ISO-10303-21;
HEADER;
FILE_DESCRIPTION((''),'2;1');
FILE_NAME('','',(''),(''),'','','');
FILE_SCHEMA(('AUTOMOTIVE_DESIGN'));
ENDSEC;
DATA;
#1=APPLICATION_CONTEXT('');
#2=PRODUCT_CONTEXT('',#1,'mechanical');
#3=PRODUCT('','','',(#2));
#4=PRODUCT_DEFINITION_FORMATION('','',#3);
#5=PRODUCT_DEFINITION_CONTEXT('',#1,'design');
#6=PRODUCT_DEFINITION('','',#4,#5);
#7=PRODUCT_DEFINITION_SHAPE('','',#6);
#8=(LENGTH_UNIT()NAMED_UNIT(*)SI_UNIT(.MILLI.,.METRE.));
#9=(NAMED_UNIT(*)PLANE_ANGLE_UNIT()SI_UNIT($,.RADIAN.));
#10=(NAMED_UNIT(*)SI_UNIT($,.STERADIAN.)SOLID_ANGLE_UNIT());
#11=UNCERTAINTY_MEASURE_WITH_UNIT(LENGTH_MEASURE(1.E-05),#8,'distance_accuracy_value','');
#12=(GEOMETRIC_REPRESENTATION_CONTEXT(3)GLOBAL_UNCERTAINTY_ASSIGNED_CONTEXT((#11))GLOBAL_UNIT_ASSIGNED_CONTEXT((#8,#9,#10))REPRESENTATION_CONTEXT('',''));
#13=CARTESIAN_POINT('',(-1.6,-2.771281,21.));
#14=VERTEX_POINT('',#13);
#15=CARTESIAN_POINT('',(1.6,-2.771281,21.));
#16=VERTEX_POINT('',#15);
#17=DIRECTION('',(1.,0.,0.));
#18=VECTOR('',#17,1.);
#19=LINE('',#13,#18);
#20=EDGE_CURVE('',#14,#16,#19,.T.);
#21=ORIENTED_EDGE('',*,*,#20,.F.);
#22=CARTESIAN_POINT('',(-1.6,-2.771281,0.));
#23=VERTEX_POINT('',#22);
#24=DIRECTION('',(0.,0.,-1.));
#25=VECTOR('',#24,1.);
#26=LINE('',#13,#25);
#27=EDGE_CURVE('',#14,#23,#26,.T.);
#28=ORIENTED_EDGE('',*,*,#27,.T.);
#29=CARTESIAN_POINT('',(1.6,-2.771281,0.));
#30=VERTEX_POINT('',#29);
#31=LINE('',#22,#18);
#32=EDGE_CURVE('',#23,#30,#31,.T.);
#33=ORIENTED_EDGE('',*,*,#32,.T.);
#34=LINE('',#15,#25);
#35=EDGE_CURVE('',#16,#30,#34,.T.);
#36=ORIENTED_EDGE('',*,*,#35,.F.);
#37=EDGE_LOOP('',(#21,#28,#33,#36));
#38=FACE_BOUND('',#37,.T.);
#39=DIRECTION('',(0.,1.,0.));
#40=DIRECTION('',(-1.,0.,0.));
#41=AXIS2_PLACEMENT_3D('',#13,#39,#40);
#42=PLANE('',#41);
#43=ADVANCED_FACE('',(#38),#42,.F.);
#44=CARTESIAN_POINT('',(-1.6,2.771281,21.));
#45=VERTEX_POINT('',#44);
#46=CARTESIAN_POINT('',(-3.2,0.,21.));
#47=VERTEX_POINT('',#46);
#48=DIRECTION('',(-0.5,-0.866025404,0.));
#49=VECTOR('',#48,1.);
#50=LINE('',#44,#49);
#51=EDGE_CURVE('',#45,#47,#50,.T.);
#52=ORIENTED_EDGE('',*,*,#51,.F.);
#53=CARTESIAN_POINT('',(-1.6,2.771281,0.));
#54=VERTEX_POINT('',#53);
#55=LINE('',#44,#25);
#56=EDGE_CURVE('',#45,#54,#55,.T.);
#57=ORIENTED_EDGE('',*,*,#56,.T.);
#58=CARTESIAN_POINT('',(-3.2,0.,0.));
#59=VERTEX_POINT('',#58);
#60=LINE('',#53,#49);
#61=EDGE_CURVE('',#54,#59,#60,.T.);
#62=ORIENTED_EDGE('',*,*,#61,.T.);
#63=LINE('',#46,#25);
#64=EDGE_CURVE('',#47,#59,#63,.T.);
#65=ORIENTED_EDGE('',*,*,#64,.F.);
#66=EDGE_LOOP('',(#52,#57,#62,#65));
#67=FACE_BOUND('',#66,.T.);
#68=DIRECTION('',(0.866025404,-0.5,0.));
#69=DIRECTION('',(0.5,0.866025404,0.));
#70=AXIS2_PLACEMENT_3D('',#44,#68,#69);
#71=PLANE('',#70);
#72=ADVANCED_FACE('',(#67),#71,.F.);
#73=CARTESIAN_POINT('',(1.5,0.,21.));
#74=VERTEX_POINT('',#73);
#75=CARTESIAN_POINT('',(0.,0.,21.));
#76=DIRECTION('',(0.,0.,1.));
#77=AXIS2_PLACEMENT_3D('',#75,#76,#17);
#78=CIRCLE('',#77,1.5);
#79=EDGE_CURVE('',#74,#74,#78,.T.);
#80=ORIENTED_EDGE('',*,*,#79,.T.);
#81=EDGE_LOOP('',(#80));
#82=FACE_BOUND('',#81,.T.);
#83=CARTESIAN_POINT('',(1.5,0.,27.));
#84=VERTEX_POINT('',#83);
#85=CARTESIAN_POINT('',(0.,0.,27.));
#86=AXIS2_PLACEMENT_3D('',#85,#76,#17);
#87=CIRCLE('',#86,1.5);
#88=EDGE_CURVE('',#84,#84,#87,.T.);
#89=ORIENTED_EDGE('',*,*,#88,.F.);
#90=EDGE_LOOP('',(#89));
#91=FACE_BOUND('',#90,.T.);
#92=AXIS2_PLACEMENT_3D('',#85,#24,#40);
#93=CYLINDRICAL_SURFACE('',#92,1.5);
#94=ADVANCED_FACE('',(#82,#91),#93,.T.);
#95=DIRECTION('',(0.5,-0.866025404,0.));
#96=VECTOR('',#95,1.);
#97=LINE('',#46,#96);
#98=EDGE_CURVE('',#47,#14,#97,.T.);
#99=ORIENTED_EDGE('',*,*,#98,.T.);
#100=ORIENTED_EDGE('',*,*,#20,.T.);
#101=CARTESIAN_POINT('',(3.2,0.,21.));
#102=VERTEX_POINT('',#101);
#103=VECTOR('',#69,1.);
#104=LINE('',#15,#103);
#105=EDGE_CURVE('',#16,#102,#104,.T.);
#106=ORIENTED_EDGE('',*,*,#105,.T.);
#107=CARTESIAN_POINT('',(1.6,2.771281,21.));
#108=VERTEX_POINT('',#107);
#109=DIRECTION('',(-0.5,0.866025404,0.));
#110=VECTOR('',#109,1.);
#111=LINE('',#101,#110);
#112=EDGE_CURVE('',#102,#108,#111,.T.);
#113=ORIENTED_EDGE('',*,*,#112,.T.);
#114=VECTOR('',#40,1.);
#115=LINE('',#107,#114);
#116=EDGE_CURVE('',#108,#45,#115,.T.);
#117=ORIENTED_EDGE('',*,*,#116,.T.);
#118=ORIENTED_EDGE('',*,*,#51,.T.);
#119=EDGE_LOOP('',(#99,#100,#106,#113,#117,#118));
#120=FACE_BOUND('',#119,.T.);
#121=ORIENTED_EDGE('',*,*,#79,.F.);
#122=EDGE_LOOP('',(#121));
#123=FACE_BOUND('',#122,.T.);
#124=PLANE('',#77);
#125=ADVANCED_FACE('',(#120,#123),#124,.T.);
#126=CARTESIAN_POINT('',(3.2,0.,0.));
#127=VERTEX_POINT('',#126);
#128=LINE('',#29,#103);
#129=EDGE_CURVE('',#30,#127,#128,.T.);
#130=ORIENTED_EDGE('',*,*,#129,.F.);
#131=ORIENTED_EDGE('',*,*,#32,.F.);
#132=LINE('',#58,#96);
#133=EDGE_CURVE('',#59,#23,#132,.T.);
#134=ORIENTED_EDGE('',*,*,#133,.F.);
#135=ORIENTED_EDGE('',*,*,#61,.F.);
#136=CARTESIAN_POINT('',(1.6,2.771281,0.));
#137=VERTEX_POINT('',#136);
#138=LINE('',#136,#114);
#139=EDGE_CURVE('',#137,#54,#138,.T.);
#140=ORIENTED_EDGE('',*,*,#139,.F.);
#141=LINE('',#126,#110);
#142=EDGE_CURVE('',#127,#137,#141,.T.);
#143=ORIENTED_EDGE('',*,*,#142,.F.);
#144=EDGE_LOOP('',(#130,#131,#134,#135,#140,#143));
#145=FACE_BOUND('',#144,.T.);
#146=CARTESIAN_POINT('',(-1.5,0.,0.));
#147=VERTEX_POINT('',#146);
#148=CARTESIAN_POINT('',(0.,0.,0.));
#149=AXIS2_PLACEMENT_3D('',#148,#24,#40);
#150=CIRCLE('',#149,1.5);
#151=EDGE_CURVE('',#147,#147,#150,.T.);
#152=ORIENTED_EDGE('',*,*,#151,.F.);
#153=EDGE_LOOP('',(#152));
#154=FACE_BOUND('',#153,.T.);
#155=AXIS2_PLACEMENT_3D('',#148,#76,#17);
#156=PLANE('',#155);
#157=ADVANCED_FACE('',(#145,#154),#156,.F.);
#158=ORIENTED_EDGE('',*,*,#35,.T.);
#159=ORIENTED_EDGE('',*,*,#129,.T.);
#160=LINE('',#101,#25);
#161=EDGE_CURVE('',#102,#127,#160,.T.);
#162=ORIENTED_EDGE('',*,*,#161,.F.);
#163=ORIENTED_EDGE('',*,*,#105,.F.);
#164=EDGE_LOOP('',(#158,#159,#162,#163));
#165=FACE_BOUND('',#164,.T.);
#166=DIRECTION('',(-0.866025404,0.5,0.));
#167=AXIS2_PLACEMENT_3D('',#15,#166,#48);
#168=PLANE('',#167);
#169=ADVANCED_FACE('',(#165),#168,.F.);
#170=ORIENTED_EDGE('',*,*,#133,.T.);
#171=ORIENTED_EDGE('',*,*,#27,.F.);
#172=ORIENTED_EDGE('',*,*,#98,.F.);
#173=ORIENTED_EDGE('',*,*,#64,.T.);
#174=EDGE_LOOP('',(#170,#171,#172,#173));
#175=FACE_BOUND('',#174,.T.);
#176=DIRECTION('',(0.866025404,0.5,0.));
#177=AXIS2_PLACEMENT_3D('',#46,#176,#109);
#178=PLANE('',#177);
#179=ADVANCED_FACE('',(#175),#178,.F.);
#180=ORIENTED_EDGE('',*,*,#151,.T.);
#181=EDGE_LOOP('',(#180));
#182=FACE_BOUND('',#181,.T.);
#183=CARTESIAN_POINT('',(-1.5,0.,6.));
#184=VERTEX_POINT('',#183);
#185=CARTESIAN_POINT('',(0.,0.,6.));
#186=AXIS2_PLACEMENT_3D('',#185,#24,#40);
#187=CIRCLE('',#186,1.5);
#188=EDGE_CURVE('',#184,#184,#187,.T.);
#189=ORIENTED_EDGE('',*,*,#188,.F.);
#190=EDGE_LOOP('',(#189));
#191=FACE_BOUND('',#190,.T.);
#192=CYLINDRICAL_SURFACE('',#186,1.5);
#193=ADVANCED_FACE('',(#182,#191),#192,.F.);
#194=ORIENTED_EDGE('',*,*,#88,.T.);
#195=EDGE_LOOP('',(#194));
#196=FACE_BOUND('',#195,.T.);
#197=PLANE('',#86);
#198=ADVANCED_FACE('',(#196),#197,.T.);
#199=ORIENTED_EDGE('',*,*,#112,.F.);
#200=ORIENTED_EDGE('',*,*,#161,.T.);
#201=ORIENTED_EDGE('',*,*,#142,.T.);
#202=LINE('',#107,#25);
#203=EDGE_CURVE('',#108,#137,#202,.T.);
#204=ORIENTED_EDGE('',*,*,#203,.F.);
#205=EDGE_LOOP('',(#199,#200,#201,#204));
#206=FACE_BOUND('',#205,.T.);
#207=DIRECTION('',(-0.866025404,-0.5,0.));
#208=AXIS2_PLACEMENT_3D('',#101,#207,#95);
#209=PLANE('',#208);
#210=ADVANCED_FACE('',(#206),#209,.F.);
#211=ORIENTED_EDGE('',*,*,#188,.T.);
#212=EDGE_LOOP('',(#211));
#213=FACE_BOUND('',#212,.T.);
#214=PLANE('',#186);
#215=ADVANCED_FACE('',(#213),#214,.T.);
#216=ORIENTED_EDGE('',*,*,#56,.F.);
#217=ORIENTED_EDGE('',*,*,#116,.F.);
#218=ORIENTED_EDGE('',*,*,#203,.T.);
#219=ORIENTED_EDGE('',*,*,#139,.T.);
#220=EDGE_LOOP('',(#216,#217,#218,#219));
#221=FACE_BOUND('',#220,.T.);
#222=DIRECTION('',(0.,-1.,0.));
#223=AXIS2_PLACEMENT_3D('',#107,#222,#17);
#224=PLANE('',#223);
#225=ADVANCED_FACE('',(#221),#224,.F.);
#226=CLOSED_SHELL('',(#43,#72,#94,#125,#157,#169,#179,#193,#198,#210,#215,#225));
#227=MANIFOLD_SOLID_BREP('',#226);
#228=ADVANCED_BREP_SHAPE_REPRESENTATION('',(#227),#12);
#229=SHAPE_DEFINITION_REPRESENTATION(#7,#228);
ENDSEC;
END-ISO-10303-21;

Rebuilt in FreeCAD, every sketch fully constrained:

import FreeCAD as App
import Part
import Sketcher

V = App.Vector
Q = App.Units.Quantity

doc = App.newDocument("Part")
body = doc.addObject("PartDesign::Body", "Body")

sketch1 = body.newObject("Sketcher::SketchObject", "Sketch")
sketch1.AttachmentSupport = (doc.getObject("XY_Plane"), [""])
sketch1.MapMode = "FlatFace"
sketch1.addGeometry([
    Part.LineSegment(V(1.6, 2.8, 0), V(-1.6, 2.8, 0)),
    Part.LineSegment(V(-1.6, 2.8, 0), V(-3.2, 0, 0)),
    Part.LineSegment(V(-3.2, 0, 0), V(-1.6, -2.8, 0)),
    Part.LineSegment(V(-1.6, -2.8, 0), V(1.6, -2.8, 0)),
    Part.LineSegment(V(1.6, -2.8, 0), V(3.2, 0, 0)),
    Part.LineSegment(V(3.2, 0, 0), V(1.6, 2.8, 0)),
], False)
sketch1.addConstraint([
    Sketcher.Constraint("Coincident", 0, 2, 1, 1),
    Sketcher.Constraint("Coincident", 1, 2, 2, 1),
    Sketcher.Constraint("Coincident", 2, 2, 3, 1),
    Sketcher.Constraint("Coincident", 3, 2, 4, 1),
    Sketcher.Constraint("Coincident", 4, 2, 5, 1),
    Sketcher.Constraint("Coincident", 5, 2, 0, 1),
    Sketcher.Constraint("Horizontal", 0),
    Sketcher.Constraint("Horizontal", 3),
    Sketcher.Constraint("Symmetric", 0, 2, 3, 2, -1, 1),
    Sketcher.Constraint("Symmetric", 1, 2, 4, 2, -1, 1),
    Sketcher.Constraint("PointOnObject", 1, 2, -1),
    Sketcher.Constraint("Parallel", 2, 5),
    Sketcher.Constraint("Vertical", 0, 2, 2, 2),
    Sketcher.Constraint("Angle", 1, Q("-120 deg")),
    Sketcher.Constraint("DistanceX", 0, 2, 0, 1, 3.2),
    Sketcher.Constraint("Distance", 1, 3.2),
])
pad1 = body.newObject("PartDesign::Pad", "Pad")
pad1.Profile = sketch1
pad1.Length = 21

sketch2 = body.newObject("Sketcher::SketchObject", "Sketch001")
sketch2.AttachmentSupport = (doc.getObject("XY_Plane"), [""])
sketch2.MapMode = "FlatFace"
sketch2.addGeometry(Part.Circle(V(0, 0, 0), V(0, 0, 1), 1.5), False)
sketch2.addConstraint([
    Sketcher.Constraint("Coincident", 0, 3, -1, 1),
    Sketcher.Constraint("Diameter", 0, 3.0),
])
pocket1 = body.newObject("PartDesign::Pocket", "Pocket")
pocket1.Profile = sketch2
pocket1.Length = 6
pocket1.Reversed = True

sketch3 = body.newObject("Sketcher::SketchObject", "Sketch002")
sketch3.AttachmentSupport = (doc.getObject("XY_Plane"), [""])
sketch3.MapMode = "FlatFace"
sketch3.AttachmentOffset = App.Placement(V(0, 0, 21), App.Rotation())
sketch3.addGeometry(Part.Circle(V(0, 0, 0), V(0, 0, 1), 1.5), False)
sketch3.addConstraint([
    Sketcher.Constraint("Coincident", 0, 3, -1, 1),
    Sketcher.Constraint("Diameter", 0, 3.0),
])
pad2 = body.newObject("PartDesign::Pad", "Pad001")
pad2.Profile = sketch3
pad2.Length = 6

doc.recompute()
